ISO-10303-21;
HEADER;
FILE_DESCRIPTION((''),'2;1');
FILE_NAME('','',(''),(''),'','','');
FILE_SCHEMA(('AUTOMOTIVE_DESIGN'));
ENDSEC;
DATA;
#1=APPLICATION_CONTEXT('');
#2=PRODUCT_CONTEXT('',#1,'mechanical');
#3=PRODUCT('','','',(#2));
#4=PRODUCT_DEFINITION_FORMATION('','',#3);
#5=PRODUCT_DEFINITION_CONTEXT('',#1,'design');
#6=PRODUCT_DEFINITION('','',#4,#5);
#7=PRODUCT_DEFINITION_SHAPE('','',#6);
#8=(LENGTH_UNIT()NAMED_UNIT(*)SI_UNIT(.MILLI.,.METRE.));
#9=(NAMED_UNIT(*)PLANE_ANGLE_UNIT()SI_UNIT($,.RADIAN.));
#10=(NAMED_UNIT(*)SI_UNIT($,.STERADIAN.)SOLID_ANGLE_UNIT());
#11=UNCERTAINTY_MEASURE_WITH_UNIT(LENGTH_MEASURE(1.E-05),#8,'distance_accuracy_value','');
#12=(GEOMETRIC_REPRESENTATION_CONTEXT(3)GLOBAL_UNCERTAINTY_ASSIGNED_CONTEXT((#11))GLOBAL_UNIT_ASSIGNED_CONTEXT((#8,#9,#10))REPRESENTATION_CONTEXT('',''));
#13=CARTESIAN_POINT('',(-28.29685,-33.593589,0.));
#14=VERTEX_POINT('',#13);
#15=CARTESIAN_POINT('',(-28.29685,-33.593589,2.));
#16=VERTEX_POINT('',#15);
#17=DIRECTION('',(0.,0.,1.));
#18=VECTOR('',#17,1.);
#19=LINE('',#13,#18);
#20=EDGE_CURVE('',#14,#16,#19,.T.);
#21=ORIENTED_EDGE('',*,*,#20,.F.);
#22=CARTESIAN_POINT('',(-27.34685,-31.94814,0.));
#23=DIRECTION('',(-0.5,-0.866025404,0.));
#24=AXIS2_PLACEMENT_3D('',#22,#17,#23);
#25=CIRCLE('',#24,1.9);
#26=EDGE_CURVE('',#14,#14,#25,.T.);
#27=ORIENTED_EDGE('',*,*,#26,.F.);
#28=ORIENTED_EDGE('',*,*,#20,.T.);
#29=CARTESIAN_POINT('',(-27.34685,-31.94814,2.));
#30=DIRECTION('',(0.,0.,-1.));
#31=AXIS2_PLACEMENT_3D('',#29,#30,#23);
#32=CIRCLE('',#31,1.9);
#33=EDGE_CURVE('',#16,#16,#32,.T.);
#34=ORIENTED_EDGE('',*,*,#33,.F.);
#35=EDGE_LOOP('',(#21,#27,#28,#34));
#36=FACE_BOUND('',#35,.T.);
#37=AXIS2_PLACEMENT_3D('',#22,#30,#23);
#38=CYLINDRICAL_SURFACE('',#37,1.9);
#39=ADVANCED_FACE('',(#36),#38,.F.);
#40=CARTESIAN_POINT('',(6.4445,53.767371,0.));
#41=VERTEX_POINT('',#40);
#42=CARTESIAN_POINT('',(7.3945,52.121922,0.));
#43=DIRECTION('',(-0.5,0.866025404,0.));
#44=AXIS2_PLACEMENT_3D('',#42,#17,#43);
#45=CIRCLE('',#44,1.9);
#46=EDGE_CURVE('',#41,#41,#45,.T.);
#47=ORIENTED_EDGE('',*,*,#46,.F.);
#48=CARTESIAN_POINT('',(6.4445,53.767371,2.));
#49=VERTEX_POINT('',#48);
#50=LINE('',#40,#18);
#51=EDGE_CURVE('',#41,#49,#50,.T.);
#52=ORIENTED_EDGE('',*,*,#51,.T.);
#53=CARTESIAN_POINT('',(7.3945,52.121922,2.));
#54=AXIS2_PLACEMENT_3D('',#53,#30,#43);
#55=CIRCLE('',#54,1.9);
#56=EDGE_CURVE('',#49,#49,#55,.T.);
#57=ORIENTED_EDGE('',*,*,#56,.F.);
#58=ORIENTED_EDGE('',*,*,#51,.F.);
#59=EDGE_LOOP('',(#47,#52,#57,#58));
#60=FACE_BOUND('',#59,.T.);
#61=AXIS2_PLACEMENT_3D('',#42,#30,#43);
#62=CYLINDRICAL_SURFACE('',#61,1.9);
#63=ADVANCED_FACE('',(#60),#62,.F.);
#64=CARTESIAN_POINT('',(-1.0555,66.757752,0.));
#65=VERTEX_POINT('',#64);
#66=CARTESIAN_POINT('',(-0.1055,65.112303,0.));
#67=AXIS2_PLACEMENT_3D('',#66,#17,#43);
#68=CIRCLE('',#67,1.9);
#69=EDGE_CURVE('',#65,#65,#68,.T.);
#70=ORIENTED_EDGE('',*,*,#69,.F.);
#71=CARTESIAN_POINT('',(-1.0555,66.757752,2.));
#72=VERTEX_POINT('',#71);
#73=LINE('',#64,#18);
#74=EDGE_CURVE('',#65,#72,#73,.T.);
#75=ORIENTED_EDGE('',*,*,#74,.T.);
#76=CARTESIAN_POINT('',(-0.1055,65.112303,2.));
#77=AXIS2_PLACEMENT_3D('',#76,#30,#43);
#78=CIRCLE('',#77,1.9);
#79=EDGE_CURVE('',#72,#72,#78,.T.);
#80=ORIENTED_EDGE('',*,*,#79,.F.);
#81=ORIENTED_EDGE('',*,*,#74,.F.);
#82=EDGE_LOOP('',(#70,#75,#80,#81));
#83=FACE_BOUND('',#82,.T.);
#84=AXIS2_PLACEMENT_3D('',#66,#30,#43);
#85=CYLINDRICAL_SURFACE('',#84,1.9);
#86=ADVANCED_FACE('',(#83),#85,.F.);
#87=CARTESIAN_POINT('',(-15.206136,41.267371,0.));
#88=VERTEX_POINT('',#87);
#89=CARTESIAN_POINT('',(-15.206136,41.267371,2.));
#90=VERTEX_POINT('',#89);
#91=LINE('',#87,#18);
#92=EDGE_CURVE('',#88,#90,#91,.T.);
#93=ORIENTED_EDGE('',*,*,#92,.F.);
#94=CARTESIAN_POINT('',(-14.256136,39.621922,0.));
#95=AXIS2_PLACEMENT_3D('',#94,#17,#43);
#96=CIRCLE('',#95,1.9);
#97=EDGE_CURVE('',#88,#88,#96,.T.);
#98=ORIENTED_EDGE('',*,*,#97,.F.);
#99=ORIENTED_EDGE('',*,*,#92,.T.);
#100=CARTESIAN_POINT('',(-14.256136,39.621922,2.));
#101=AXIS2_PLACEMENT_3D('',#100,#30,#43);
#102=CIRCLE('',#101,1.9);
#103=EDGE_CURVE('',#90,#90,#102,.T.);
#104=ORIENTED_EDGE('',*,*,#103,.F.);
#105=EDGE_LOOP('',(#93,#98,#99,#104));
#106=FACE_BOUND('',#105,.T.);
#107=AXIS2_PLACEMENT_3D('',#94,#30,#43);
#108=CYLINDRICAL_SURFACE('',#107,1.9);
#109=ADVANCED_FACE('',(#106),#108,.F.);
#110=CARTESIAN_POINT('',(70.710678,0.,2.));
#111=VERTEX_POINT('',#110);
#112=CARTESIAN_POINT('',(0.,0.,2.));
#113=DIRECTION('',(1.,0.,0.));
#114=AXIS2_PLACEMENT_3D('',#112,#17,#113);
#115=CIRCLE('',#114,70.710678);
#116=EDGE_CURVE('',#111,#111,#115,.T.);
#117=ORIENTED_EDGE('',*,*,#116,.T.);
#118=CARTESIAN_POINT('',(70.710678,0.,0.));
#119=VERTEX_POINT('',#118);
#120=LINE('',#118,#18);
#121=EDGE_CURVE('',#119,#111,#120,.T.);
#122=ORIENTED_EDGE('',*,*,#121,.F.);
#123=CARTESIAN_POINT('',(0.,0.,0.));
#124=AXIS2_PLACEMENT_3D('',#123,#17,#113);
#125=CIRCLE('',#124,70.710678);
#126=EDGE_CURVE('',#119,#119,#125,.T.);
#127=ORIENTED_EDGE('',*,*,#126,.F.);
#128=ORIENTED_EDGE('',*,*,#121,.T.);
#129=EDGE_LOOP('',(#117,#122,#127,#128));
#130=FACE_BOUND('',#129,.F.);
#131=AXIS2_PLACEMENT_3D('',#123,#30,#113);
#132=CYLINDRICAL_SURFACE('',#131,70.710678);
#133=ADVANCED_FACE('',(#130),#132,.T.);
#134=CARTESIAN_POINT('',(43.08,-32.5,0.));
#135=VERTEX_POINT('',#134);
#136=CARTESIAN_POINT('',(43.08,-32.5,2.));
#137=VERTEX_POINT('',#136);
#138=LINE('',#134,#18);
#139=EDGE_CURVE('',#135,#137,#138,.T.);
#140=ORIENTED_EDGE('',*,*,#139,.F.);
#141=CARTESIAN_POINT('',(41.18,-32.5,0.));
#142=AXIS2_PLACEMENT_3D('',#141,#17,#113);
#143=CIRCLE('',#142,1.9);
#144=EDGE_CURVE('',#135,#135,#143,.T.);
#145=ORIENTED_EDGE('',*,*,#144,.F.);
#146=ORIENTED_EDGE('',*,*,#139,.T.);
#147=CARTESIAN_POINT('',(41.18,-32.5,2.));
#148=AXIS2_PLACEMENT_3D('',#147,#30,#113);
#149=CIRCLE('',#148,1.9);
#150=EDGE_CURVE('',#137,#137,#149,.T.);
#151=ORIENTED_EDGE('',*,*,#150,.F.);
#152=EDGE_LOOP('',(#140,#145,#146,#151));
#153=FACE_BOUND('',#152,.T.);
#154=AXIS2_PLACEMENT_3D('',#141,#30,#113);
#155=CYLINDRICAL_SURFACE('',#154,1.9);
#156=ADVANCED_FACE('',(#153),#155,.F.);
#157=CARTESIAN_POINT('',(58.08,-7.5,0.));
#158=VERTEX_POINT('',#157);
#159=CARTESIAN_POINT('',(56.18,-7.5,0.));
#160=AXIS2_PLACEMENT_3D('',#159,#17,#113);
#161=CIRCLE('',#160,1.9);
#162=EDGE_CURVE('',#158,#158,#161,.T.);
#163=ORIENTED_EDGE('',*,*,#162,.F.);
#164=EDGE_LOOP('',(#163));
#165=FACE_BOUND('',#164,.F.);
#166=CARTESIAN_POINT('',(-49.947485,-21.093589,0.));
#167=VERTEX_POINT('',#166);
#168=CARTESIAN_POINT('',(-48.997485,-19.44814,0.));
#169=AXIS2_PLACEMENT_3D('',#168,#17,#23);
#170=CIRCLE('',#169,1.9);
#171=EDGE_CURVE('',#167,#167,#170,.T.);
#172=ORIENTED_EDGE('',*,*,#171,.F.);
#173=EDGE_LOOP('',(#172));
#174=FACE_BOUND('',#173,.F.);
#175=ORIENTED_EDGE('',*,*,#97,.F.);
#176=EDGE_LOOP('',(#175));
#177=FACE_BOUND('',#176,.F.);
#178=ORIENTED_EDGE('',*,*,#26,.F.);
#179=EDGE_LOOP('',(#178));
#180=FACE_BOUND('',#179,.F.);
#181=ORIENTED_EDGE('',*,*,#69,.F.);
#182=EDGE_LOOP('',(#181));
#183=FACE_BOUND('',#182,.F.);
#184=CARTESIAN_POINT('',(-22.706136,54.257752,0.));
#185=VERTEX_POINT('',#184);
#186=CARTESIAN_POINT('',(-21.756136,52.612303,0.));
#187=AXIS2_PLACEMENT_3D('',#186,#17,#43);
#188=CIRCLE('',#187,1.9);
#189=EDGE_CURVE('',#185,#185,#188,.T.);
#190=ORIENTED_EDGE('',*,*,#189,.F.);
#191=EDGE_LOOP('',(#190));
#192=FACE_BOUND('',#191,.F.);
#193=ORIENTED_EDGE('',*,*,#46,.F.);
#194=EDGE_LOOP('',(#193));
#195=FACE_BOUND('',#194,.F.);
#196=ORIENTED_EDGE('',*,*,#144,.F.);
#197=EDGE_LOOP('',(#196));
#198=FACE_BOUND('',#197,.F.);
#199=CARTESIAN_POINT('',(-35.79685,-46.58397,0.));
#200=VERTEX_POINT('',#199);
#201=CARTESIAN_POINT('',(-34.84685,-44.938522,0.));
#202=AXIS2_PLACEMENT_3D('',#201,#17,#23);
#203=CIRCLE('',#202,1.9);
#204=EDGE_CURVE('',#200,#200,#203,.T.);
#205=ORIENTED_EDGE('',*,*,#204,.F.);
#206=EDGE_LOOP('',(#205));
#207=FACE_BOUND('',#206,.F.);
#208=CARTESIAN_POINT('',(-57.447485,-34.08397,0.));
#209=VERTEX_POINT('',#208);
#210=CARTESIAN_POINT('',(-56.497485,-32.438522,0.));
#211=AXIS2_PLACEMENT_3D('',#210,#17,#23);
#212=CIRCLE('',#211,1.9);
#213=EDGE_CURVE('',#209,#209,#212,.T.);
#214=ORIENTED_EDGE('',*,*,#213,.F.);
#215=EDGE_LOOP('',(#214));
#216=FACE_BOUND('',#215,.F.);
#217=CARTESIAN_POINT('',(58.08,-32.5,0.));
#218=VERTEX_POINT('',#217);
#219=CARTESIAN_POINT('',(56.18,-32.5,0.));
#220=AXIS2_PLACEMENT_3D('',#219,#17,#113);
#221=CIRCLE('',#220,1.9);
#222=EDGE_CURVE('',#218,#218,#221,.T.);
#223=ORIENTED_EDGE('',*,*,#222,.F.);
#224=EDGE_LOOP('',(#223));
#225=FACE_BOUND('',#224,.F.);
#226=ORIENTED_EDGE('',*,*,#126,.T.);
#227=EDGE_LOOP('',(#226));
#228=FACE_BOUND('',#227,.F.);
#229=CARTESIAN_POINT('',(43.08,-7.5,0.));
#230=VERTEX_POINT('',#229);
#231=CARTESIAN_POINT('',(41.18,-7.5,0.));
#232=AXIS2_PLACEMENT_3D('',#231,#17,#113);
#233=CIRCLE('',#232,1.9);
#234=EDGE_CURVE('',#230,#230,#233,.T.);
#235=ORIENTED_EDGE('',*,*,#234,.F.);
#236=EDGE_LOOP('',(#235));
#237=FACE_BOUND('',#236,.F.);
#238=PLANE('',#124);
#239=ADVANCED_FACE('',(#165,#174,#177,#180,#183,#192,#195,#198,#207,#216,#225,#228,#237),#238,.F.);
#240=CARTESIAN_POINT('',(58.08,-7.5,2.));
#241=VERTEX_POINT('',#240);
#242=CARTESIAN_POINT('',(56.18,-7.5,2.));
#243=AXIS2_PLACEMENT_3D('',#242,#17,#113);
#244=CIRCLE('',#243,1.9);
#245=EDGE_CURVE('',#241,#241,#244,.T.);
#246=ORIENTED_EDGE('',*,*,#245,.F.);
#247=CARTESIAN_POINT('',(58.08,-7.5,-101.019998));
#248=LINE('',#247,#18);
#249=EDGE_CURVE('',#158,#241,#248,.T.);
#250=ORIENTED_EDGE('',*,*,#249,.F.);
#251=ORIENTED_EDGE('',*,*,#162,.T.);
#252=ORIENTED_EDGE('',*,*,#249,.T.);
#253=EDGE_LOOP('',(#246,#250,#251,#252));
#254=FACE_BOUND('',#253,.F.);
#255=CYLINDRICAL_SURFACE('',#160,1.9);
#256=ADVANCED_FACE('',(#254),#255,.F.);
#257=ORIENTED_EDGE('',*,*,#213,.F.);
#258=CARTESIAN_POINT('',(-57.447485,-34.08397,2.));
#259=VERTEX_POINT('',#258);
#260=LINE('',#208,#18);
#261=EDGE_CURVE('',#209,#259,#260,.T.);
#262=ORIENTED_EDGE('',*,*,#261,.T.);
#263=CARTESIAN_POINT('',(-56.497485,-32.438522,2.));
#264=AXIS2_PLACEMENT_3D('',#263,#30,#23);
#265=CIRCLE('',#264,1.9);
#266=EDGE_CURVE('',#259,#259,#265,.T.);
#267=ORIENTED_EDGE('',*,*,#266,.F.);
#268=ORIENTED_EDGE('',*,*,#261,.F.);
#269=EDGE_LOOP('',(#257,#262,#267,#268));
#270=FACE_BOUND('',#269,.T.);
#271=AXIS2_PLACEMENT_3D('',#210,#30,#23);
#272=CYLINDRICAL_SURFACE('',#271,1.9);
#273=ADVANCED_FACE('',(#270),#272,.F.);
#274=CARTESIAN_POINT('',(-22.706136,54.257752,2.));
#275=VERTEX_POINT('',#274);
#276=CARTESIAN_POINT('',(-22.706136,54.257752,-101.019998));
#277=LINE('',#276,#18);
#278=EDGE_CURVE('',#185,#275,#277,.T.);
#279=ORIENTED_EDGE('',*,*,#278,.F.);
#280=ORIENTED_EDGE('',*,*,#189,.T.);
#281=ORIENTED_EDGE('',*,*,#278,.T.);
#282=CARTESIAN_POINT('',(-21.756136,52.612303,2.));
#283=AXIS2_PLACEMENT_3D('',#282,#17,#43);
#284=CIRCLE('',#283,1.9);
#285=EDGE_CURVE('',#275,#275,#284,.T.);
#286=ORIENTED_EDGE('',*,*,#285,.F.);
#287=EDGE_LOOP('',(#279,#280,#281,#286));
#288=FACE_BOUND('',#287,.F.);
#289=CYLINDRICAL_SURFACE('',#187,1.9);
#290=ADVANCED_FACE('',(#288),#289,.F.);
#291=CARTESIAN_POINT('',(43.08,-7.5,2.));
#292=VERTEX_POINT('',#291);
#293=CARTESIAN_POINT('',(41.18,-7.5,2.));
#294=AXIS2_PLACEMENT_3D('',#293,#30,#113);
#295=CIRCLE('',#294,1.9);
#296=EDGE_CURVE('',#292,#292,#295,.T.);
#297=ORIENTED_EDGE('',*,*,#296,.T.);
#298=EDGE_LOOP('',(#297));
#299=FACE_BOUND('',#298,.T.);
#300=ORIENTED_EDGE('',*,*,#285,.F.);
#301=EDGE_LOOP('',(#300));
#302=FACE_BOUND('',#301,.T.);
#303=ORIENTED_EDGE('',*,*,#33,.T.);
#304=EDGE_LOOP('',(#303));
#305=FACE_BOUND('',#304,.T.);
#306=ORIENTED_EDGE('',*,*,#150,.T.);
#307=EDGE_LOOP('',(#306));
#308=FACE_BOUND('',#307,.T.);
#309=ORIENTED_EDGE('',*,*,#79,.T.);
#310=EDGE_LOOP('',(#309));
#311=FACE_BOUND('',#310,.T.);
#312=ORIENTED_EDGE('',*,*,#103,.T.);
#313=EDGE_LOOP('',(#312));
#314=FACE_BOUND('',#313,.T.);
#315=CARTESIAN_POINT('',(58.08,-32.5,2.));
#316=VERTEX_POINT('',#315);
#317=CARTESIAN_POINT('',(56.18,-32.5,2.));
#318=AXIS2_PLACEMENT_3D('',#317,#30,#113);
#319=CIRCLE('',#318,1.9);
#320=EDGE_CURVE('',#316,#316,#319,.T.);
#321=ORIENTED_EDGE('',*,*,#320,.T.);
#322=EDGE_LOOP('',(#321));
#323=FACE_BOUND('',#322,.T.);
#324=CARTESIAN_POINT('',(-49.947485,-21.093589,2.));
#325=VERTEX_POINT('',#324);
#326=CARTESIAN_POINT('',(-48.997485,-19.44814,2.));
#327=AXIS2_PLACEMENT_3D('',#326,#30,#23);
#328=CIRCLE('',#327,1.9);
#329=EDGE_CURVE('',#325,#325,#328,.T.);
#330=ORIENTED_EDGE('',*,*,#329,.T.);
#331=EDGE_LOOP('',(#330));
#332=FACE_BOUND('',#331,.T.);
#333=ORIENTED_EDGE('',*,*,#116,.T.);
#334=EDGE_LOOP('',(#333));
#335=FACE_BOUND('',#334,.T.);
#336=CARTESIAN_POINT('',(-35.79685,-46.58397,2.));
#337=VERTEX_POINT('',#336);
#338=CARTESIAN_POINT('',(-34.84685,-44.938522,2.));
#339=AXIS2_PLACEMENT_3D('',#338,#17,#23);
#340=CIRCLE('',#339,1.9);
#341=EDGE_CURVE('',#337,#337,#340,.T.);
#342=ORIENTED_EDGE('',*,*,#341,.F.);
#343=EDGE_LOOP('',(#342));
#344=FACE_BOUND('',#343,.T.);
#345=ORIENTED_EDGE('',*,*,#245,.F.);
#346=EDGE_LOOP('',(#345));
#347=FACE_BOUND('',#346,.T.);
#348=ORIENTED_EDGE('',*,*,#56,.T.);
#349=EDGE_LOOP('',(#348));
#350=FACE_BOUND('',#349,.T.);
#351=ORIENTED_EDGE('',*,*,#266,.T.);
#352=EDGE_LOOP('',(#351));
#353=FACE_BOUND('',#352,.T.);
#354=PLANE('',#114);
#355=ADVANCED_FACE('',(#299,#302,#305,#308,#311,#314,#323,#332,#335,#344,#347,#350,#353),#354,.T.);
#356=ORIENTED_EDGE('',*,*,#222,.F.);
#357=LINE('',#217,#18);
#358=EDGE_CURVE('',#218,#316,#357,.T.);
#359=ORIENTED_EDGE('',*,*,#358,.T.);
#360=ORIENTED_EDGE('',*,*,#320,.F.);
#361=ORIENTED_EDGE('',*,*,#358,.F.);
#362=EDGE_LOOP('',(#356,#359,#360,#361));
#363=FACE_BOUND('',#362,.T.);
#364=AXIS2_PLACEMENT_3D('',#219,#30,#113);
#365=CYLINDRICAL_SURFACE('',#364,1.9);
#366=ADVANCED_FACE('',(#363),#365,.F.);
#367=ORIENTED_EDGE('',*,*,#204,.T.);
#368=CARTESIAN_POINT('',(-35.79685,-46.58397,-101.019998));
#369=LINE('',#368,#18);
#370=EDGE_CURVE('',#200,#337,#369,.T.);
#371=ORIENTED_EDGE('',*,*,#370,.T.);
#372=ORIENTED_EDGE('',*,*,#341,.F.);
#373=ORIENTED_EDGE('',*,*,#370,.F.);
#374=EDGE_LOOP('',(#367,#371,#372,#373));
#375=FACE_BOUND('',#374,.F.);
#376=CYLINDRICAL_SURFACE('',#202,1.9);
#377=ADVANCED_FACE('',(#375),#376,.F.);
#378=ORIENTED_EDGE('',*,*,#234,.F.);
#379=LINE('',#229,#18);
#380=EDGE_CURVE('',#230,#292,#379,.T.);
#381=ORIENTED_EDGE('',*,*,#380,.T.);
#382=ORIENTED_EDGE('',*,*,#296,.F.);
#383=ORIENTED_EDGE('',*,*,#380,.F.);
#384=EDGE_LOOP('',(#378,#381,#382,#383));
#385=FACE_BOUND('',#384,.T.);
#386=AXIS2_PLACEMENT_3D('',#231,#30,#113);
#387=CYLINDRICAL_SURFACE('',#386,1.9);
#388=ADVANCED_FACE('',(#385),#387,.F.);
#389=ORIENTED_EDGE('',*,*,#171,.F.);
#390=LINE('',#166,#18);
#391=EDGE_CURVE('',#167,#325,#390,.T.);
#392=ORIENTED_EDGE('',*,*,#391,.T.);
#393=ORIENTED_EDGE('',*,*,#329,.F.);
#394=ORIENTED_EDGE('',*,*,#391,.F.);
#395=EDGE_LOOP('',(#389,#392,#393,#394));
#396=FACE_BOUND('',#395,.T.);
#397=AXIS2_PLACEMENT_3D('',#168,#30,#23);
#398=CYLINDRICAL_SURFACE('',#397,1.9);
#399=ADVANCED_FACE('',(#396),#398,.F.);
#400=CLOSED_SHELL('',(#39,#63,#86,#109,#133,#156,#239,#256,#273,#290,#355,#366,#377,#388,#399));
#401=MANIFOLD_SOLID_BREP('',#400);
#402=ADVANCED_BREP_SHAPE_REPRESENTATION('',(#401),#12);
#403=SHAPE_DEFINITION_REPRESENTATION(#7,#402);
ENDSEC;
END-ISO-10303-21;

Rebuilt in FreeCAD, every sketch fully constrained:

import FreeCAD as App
import Part
import Sketcher

V = App.Vector

doc = App.newDocument("Part")
body = doc.addObject("PartDesign::Body", "Body")

# Sketch on XY plane
sketch1 = body.newObject("Sketcher::SketchObject", "Sketch")
sketch1.AttachmentSupport = (doc.getObject("XY_Plane"), [""])
sketch1.MapMode = "FlatFace"
sketch1.addGeometry(Part.Circle(V(0, 0, 0), V(0, 0, 1), 71), False)
sketch1.addConstraint([
    Sketcher.Constraint("Coincident", 0, 3, -1, 1),
    Sketcher.Constraint("Diameter", 0, 141.421356),
])
pad1 = body.newObject("PartDesign::Pad", "Pad")
pad1.Profile = sketch1
pad1.Length = 2

# Sketch on XY plane
sketch2 = body.newObject("Sketcher::SketchObject", "Sketch001")
sketch2.AttachmentSupport = (doc.getObject("XY_Plane"), [""])
sketch2.MapMode = "FlatFace"
sketch2.addGeometry([
    Part.Circle(V(41.2, -7.5, 0), V(0, 0, 1), 1.9),
    Part.Circle(V(41.2, -32.5, 0), V(0, 0, 1), 1.9),
    Part.Circle(V(56.2, -32.5, 0), V(0, 0, 1), 1.9),
    Part.Circle(V(56.2, -7.5, 0), V(0, 0, 1), 1.9),
], False)
sketch2.addConstraint([
    Sketcher.Constraint("Equal", 0, 1),
    Sketcher.Constraint("Equal", 1, 2),
    Sketcher.Constraint("Equal", 2, 3),
    Sketcher.Constraint("Horizontal", 1, 3, 2, 3),
    Sketcher.Constraint("Horizontal", 0, 3, 3, 3),
    Sketcher.Constraint("Vertical", 0, 3, 1, 3),
    Sketcher.Constraint("Vertical", 2, 3, 3, 3),
    Sketcher.Constraint("Diameter", 0, 3.8),
    Sketcher.Constraint("DistanceY", 1, 3, 0, 3, 25.0),
    Sketcher.Constraint("DistanceX", 1, 3, 2, 3, 15.0),
    Sketcher.Constraint("DistanceY", 0, 3, -1, 1, 7.5),
    Sketcher.Constraint("DistanceX", -1, 1, 0, 3, 41.18),
])
pocket1 = body.newObject("PartDesign::Pocket", "Pocket")
pocket1.Profile = sketch2
pocket1.Length = 202.039996
pocket1.Midplane = True
doc.recompute()

datumline = body.newObject("PartDesign::Line", "DatumLine")
datumline.Placement = App.Placement(V(-0.140995, 0.057927, 0), App.Rotation(V(0, 0, 1), V(0, 0, 1)))
polarpattern = body.newObject("PartDesign::PolarPattern", "PolarPattern")
polarpattern.Originals = [pocket1]
polarpattern.Axis = (datumline, [""])
polarpattern.Angle = 360
polarpattern.Occurrences = 3
body.Tip = polarpattern

doc.recompute()
